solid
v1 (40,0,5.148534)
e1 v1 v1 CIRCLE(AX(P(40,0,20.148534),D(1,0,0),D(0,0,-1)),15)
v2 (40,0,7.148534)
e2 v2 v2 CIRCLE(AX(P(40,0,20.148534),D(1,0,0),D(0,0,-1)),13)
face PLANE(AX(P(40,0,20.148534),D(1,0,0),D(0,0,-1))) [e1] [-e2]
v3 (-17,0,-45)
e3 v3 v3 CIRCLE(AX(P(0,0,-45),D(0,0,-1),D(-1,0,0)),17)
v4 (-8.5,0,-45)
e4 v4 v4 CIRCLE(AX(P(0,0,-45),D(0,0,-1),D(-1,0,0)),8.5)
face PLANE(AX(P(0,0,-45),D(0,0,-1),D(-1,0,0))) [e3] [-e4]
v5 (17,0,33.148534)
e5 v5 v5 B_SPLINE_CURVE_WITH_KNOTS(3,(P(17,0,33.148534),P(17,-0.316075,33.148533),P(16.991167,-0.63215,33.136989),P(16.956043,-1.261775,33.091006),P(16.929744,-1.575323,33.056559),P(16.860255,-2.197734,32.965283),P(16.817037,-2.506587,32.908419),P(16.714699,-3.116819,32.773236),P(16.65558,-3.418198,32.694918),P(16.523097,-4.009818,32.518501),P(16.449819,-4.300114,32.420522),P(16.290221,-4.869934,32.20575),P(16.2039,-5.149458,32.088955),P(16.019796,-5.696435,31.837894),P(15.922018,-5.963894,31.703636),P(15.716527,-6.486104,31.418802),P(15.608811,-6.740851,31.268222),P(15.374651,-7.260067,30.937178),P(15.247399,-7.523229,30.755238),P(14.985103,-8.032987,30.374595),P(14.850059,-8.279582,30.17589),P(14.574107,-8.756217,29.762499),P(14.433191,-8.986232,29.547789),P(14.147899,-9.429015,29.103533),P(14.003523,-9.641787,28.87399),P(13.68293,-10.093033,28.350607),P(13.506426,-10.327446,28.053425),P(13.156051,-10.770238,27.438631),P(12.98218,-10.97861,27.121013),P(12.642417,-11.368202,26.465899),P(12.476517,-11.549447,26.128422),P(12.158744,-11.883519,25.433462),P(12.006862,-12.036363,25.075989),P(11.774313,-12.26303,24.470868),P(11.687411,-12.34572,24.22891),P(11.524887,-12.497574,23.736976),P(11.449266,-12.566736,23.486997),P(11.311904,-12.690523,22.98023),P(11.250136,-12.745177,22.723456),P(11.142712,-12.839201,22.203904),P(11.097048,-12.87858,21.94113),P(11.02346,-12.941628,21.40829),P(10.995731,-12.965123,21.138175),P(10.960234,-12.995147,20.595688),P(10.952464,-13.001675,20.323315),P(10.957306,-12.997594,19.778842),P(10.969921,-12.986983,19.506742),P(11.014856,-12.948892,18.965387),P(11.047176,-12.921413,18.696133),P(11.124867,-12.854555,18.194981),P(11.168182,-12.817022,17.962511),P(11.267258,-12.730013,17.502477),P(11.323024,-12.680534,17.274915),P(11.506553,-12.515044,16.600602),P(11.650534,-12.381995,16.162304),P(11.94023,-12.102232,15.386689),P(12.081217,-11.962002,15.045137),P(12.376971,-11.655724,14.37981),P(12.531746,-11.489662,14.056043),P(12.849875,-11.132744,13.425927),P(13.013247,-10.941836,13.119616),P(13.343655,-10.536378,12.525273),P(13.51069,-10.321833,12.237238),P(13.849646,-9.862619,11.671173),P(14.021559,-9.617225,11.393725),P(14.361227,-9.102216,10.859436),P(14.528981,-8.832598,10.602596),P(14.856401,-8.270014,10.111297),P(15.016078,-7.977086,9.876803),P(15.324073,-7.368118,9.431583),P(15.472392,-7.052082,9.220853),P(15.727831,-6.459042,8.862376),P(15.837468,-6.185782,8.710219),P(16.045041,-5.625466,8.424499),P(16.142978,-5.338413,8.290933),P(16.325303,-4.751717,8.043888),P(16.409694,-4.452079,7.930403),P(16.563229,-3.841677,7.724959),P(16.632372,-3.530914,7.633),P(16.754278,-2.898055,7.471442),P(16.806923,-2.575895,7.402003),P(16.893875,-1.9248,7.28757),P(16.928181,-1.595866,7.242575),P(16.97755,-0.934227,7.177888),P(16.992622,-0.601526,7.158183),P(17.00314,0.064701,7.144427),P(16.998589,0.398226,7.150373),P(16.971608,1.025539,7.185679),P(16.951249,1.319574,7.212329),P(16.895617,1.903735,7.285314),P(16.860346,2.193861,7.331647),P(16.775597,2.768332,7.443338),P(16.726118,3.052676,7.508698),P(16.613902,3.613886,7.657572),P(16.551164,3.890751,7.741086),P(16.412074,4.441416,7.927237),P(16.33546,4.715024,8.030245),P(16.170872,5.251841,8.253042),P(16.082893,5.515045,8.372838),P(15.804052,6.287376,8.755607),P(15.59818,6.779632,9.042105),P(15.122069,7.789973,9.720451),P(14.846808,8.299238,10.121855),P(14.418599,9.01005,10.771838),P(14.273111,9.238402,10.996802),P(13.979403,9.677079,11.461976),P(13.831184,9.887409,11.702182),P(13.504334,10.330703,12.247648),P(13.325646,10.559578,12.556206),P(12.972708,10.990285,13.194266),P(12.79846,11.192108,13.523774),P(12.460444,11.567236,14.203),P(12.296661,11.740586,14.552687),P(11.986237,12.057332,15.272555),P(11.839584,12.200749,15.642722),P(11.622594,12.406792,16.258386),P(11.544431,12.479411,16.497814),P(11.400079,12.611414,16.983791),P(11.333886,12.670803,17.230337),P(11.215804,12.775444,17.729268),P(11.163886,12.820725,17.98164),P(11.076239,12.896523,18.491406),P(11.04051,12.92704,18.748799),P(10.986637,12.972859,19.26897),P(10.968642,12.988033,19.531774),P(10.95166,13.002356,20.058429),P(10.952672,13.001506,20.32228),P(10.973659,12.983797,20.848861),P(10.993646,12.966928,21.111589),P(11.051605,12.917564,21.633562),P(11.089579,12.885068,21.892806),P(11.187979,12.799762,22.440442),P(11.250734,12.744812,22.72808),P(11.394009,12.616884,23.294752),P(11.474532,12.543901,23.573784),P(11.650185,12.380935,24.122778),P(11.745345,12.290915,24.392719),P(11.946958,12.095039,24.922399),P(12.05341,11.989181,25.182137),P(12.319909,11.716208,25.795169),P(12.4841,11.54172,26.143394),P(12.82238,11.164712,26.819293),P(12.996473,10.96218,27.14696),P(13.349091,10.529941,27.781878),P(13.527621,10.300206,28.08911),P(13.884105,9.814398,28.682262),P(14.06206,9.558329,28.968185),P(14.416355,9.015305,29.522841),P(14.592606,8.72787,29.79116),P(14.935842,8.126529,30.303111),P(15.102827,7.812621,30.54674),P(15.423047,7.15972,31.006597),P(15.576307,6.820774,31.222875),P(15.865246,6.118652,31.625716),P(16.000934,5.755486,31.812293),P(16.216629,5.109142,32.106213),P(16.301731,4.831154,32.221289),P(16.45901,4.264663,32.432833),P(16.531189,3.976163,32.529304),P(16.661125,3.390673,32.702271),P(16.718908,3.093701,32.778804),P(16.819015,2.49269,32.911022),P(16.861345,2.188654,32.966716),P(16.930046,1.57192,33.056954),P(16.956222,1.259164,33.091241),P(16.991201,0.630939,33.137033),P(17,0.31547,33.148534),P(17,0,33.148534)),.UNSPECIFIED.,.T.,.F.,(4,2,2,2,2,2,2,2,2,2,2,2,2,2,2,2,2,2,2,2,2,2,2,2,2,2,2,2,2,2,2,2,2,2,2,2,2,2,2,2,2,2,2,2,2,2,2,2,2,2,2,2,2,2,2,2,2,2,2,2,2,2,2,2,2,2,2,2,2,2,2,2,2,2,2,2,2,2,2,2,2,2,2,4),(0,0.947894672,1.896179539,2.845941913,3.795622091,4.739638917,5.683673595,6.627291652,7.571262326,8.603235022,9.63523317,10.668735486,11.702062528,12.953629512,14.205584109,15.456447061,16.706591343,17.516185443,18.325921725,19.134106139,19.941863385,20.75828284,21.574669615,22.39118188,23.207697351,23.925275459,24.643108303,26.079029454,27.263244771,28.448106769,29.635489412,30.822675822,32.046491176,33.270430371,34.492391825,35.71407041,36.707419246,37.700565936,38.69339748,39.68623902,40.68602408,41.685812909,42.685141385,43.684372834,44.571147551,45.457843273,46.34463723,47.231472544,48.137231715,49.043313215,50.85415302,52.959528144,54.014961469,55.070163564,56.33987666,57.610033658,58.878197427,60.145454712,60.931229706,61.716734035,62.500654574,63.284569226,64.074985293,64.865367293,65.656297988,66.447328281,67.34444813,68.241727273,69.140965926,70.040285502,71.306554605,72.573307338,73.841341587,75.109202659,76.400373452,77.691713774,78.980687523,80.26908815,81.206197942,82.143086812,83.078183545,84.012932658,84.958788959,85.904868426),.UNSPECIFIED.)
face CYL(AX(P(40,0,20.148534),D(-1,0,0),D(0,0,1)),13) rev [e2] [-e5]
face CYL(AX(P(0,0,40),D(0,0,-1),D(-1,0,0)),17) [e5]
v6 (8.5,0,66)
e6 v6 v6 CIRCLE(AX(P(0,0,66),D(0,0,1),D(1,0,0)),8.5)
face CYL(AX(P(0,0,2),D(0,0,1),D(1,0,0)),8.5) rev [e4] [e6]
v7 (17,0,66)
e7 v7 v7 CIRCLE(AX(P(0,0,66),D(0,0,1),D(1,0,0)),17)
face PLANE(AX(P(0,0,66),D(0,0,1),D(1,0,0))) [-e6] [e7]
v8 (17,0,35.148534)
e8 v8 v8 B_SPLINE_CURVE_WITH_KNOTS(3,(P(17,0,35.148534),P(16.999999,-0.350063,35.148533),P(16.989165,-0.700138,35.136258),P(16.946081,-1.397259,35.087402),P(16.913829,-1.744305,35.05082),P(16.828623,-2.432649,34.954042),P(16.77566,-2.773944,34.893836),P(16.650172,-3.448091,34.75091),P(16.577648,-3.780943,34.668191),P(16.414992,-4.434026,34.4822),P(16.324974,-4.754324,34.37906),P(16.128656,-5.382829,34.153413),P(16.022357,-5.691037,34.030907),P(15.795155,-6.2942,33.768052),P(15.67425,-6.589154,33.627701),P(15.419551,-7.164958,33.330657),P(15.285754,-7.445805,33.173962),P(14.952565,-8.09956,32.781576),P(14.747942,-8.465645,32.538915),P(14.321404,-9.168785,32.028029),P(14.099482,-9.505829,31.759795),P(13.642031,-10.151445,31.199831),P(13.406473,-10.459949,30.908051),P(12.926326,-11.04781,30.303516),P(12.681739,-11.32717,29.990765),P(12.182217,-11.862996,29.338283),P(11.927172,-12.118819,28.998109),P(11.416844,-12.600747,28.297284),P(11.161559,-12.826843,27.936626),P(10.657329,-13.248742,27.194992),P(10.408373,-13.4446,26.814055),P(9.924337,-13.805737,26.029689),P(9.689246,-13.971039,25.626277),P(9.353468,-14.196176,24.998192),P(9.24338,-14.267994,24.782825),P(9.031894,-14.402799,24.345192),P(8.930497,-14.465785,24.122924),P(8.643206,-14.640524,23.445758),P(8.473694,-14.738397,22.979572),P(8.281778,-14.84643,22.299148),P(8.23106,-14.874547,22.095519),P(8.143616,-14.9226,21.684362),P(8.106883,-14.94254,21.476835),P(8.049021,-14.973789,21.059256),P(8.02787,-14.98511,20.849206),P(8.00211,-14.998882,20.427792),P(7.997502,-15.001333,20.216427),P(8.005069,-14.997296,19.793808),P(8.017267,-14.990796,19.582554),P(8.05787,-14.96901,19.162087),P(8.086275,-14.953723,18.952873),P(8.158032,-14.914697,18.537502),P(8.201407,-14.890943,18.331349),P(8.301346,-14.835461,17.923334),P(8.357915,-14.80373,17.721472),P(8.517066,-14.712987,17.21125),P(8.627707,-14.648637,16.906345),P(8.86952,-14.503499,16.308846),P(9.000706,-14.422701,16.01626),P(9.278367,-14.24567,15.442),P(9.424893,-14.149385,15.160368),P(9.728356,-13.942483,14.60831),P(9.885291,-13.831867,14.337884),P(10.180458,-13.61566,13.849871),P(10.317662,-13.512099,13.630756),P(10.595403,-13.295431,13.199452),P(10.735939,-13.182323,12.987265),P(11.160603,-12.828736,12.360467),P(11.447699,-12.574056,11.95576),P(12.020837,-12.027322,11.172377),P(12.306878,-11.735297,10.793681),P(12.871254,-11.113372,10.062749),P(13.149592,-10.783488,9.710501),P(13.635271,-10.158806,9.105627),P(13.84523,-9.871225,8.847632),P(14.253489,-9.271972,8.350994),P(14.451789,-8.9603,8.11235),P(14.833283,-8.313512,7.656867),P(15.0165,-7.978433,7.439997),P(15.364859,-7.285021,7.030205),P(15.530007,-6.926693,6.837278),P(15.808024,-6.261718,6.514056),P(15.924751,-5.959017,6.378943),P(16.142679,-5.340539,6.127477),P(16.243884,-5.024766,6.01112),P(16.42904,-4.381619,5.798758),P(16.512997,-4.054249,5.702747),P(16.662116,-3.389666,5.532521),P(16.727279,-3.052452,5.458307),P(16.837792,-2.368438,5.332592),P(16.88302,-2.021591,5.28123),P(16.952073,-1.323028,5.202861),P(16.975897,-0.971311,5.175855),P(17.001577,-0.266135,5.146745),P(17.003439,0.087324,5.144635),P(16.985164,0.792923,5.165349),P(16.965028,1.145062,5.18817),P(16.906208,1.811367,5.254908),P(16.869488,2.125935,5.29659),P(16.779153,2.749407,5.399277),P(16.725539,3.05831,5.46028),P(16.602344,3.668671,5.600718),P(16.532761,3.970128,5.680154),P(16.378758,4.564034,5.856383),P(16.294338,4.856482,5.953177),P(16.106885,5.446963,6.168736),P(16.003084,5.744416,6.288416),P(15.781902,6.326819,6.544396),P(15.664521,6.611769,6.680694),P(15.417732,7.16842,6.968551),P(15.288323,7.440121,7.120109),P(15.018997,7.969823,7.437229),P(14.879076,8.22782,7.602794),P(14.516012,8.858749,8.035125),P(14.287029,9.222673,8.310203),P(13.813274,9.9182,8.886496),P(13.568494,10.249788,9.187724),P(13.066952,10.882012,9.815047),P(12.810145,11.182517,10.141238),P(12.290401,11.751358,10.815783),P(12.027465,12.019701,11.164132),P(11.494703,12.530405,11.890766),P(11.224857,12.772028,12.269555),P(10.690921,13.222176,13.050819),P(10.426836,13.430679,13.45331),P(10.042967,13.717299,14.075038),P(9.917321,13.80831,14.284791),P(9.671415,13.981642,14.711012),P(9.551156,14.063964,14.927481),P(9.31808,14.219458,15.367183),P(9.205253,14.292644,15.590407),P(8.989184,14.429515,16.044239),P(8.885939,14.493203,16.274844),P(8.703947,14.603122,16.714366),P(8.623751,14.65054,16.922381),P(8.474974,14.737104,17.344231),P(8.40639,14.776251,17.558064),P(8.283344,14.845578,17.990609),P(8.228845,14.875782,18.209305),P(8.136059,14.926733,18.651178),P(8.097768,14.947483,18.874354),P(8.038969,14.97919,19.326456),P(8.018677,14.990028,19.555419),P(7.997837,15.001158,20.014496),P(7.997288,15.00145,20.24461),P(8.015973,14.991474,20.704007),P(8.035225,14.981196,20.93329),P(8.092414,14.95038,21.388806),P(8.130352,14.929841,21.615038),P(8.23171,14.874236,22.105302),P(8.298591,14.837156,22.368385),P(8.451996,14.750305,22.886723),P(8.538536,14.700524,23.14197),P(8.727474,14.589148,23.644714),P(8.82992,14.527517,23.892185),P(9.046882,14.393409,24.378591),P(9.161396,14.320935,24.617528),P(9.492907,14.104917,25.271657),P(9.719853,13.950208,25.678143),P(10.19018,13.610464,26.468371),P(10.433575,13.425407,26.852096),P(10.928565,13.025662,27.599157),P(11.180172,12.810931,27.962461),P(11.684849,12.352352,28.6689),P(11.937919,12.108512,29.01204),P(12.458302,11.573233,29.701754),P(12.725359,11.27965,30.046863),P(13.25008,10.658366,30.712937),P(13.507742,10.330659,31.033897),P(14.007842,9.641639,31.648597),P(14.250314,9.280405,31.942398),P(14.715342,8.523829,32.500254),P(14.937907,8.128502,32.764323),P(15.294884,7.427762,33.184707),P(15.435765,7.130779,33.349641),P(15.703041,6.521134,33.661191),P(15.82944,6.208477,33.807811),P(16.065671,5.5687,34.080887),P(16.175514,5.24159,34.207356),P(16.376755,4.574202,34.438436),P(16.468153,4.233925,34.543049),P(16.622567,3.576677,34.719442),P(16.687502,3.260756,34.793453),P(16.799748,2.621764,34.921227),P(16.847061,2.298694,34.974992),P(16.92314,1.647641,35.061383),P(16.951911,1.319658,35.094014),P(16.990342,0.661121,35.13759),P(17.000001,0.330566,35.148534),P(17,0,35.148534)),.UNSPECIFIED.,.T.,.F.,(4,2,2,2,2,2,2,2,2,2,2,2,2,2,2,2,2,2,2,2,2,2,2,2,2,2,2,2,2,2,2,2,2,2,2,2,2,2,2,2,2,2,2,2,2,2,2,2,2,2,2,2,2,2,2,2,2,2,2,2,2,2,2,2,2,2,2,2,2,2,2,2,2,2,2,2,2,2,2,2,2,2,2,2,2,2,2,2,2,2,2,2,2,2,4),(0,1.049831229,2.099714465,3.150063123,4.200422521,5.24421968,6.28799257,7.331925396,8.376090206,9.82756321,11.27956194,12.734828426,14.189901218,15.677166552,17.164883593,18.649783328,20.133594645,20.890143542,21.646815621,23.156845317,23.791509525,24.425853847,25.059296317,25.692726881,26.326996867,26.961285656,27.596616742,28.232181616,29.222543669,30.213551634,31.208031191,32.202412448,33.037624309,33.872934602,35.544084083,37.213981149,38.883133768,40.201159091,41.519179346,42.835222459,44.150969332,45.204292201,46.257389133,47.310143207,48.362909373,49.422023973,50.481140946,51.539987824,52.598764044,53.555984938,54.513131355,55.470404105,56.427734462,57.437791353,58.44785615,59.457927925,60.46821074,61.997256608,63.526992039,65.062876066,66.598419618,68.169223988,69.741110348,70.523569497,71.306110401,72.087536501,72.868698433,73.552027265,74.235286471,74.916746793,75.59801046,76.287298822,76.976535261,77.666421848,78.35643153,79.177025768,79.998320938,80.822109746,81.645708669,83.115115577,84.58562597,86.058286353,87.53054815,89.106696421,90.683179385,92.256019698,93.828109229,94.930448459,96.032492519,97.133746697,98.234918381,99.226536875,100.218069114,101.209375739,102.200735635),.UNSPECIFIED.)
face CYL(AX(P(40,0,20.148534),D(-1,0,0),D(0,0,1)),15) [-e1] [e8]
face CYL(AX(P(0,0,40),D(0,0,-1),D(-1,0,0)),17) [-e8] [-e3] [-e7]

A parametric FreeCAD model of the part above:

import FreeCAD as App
import Part
import Sketcher
from FreeCAD import Vector
Q = App.Units.Quantity

doc = App.newDocument("Part")
params = doc.addObject("Spreadsheet::Sheet", "Params")
for row, (alias, value) in enumerate([
    ("sketch1_diameter", "34 mm"),
    ("pad1_length", "40 mm"),
    ("sketch2_diameter", "17 mm"),
    ("pocket1_length", "38 mm"),
    ("sketch3_diameter", "17 mm"),
    ("pocket2_length", "38 mm"),
    ("sketch4_diameter", "30 mm"),
    ("sketch4_diameter2", "26 mm"),
    ("pad2_length", "40 mm"),
    ("sketch5_diameter", "17 mm"),
    ("pocket3_length", "50 mm"),
    ("sketch6_diameter", "34 mm"),
    ("sketch6_diameter2", "17 mm"),
    ("pad3_length", "45 mm"),
    ("sketch7_diameter", "34 mm"),
    ("sketch7_diameter2", "17 mm"),
    ("pad4_length", "26 mm"),
], start=1):
    params.set(f"A{row}", alias)
    params.set(f"B{row}", "=" + value)
    params.setAlias(f"B{row}", alias)

body = doc.addObject("PartDesign::Body", "Body")

sketch1 = doc.addObject("Sketcher::SketchObject", "Sketch")
body.addObject(sketch1)
sketch1.AttachmentSupport = (doc.XY_Plane, [""])
sketch1.MapMode = "FlatFace"
sketch1.addGeometry(Part.Circle(Vector(0, 0, 0), Vector(0, 0, 1), 17), False)
sketch1.addConstraint([
    Sketcher.Constraint("Coincident", 0, 3, -1, 1),
    Sketcher.Constraint("Diameter", 0, Q("34 mm")),
])
sketch1.setExpression("Constraints[1]", "Params.sketch1_diameter")
pad1 = doc.addObject("PartDesign::Pad", "Pad")
body.addObject(pad1)
pad1.Profile = sketch1
pad1.setExpression("Length", "Params.pad1_length")

sketch2 = doc.addObject("Sketcher::SketchObject", "Sketch001")
body.addObject(sketch2)
sketch2.AttachmentSupport = (doc.XY_Plane, [""])
sketch2.MapMode = "FlatFace"
sketch2.AttachmentOffset = App.Placement(Vector(0, 0, 40), App.Rotation())
sketch2.addGeometry(Part.Circle(Vector(0, 0, 0), Vector(0, 0, 1), 8.5), False)
sketch2.addConstraint([
    Sketcher.Constraint("Coincident", 0, 3, -1, 1),
    Sketcher.Constraint("Diameter", 0, Q("17 mm")),
])
sketch2.setExpression("Constraints[1]", "Params.sketch2_diameter")
pocket1 = doc.addObject("PartDesign::Pocket", "Pocket")
body.addObject(pocket1)
pocket1.Profile = sketch2
pocket1.setExpression("Length", "Params.pocket1_length")

sketch3 = doc.addObject("Sketcher::SketchObject", "Sketch002")
body.addObject(sketch3)
sketch3.AttachmentSupport = (doc.XY_Plane, [""])
sketch3.MapMode = "FlatFace"
sketch3.AttachmentOffset = App.Placement(Vector(0, 0, 38), App.Rotation())
sketch3.addGeometry(Part.Circle(Vector(0, 0, 0), Vector(0, 0, 1), 8.5), False)
sketch3.addConstraint([
    Sketcher.Constraint("Coincident", 0, 3, -1, 1),
    Sketcher.Constraint("Diameter", 0, Q("17 mm")),
])
sketch3.setExpression("Constraints[1]", "Params.sketch3_diameter")
pocket2 = doc.addObject("PartDesign::Pocket", "Pocket001")
body.addObject(pocket2)
pocket2.Profile = sketch3
pocket2.setExpression("Length", "Params.pocket2_length")

sketch4 = doc.addObject("Sketcher::SketchObject", "Sketch003")
body.addObject(sketch4)
sketch4.AttachmentSupport = (doc.YZ_Plane, [""])
sketch4.MapMode = "FlatFace"
sketch4.addGeometry([
    Part.Circle(Vector(0, 20.148534, 0), Vector(0, 0, 1), 15),
    Part.Circle(Vector(0, 20.148534, 0), Vector(0, 0, 1), 13),
], False)
sketch4.addConstraint([
    Sketcher.Constraint("Coincident", 1, 3, 0, 3),
    Sketcher.Constraint("PointOnObject", 0, 3, -2),
    Sketcher.Constraint("Diameter", 0, Q("30 mm")),
    Sketcher.Constraint("Diameter", 1, Q("26 mm")),
    Sketcher.Constraint("DistanceY", -1, 1, 0, 3, Q("20.148534 mm")),
])
sketch4.setExpression("Constraints[2]", "Params.sketch4_diameter")
sketch4.setExpression("Constraints[3]", "Params.sketch4_diameter2")
pad2 = doc.addObject("PartDesign::Pad", "Pad001")
body.addObject(pad2)
pad2.Profile = sketch4
pad2.setExpression("Length", "Params.pad2_length")

sketch5 = doc.addObject("Sketcher::SketchObject", "Sketch004")
body.addObject(sketch5)
sketch5.AttachmentSupport = (doc.XY_Plane, [""])
sketch5.MapMode = "FlatFace"
sketch5.AttachmentOffset = App.Placement(Vector(0, 0, 50), App.Rotation())
sketch5.addGeometry(Part.Circle(Vector(0, 0, 0), Vector(0, 0, 1), 8.5), False)
sketch5.addConstraint([
    Sketcher.Constraint("Coincident", 0, 3, -1, 1),
    Sketcher.Constraint("Diameter", 0, Q("17 mm")),
])
sketch5.setExpression("Constraints[1]", "Params.sketch5_diameter")
pocket3 = doc.addObject("PartDesign::Pocket", "Pocket002")
body.addObject(pocket3)
pocket3.Profile = sketch5
pocket3.setExpression("Length", "Params.pocket3_length")

sketch6 = doc.addObject("Sketcher::SketchObject", "Sketch005")
body.addObject(sketch6)
sketch6.AttachmentSupport = (doc.XY_Plane, [""])
sketch6.MapMode = "FlatFace"
sketch6.AttachmentOffset = App.Placement(Vector(0, 0, -45), App.Rotation())
sketch6.addGeometry([
    Part.Circle(Vector(0, 0, 0), Vector(0, 0, 1), 17),
    Part.Circle(Vector(0, 0, 0), Vector(0, 0, 1), 8.5),
], False)
sketch6.addConstraint([
    Sketcher.Constraint("Coincident", 0, 3, -1, 1),
    Sketcher.Constraint("Coincident", 1, 3, -1, 1),
    Sketcher.Constraint("Diameter", 0, Q("34 mm")),
    Sketcher.Constraint("Diameter", 1, Q("17 mm")),
])
sketch6.setExpression("Constraints[2]", "Params.sketch6_diameter")
sketch6.setExpression("Constraints[3]", "Params.sketch6_diameter2")
pad3 = doc.addObject("PartDesign::Pad", "Pad002")
body.addObject(pad3)
pad3.Profile = sketch6
pad3.setExpression("Length", "Params.pad3_length")

sketch7 = doc.addObject("Sketcher::SketchObject", "Sketch006")
body.addObject(sketch7)
sketch7.AttachmentSupport = (doc.XY_Plane, [""])
sketch7.MapMode = "FlatFace"
sketch7.AttachmentOffset = App.Placement(Vector(0, 0, 40), App.Rotation())
sketch7.addGeometry([
    Part.Circle(Vector(0, 0, 0), Vector(0, 0, 1), 17),
    Part.Circle(Vector(0, 0, 0), Vector(0, 0, 1), 8.5),
], False)
sketch7.addConstraint([
    Sketcher.Constraint("Coincident", 0, 3, -1, 1),
    Sketcher.Constraint("Coincident", 1, 3, -1, 1),
    Sketcher.Constraint("Diameter", 0, Q("34 mm")),
    Sketcher.Constraint("Diameter", 1, Q("17 mm")),
])
sketch7.setExpression("Constraints[2]", "Params.sketch7_diameter")
sketch7.setExpression("Constraints[3]", "Params.sketch7_diameter2")
pad4 = doc.addObject("PartDesign::Pad", "Pad003")
body.addObject(pad4)
pad4.Profile = sketch7
pad4.setExpression("Length", "Params.pad4_length")

doc.recompute()
